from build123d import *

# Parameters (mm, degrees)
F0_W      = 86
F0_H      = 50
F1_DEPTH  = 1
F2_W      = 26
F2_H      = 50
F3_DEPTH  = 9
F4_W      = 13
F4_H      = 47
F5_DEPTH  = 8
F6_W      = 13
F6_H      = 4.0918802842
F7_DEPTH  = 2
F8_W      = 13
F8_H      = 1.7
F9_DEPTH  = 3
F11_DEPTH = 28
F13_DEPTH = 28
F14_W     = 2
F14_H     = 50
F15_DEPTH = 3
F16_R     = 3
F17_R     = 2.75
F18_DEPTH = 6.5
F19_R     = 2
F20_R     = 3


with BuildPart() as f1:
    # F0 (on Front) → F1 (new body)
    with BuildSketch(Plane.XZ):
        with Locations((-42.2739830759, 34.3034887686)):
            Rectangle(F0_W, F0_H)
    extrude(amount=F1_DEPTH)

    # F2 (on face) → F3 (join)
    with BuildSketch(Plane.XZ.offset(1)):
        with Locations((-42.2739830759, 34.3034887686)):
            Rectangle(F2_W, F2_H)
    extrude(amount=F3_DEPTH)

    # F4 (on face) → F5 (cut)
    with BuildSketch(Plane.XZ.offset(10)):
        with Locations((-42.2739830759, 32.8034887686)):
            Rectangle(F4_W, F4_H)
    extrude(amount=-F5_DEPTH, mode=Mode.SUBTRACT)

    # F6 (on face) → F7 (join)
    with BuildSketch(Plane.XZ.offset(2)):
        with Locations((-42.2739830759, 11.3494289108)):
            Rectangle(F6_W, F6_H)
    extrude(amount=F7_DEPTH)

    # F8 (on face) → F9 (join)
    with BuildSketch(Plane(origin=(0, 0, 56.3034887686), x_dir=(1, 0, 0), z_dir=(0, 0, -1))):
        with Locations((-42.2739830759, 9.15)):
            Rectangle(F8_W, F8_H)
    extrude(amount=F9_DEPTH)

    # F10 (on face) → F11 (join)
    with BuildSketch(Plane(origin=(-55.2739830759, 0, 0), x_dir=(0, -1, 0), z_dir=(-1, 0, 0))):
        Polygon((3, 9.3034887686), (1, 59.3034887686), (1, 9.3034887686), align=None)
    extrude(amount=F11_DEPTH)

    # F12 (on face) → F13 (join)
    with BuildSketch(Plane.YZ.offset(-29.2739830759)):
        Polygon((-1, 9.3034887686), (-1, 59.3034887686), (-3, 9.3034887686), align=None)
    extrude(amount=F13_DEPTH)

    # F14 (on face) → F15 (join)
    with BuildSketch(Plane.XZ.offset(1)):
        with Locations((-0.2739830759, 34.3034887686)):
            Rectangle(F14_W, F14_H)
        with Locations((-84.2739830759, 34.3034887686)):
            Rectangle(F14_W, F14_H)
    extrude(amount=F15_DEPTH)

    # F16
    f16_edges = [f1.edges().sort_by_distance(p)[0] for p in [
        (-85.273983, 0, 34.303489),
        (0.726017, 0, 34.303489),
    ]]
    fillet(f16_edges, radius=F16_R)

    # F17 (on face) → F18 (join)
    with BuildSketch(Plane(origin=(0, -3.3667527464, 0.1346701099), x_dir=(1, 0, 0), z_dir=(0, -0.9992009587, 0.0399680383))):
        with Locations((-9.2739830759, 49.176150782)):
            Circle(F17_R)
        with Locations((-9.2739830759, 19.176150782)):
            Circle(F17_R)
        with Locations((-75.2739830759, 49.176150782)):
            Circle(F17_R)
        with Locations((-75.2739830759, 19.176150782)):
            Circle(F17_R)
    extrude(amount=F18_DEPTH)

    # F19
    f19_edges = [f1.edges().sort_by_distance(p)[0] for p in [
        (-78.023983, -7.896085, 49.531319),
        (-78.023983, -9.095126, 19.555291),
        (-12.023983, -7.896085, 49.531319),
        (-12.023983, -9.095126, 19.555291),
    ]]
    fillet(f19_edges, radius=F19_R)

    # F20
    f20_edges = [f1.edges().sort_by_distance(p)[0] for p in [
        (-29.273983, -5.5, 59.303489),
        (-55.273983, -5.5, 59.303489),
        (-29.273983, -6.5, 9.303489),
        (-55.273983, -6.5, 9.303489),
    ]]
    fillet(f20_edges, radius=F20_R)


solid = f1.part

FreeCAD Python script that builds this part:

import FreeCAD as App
import Part
import Sketcher
from FreeCAD import Vector


def edges_at(feature, points):
    """Names of the edges that pass closest to the given points."""
    edges = feature.Shape.Edges
    near = lambda p: min(range(len(edges)), key=lambda i: edges[i].distToShape(Part.Vertex(*p))[0])
    return sorted({f"Edge{near(p) + 1}" for p in points})


def add_polygon(sketch, points):
    """Adds a closed chain of lines whose ends are joined by coincident constraints."""
    first, n = sketch.GeometryCount, len(points)
    for a, b in zip(points, points[1:] + points[:1]):
        sketch.addGeometry(Part.LineSegment(App.Vector(*a, 0), App.Vector(*b, 0)), False)
    for i in range(n):
        sketch.addConstraint(Sketcher.Constraint("Coincident", first + i, 2, first + (i + 1) % n, 1))

doc = App.newDocument("Part")
body = doc.addObject("PartDesign::Body", "Body")

sketch1 = body.newObject("Sketcher::SketchObject", "Sketch")
sketch1.AttachmentSupport = (doc.getObject("XZ_Plane"), [""])
sketch1.MapMode = "FlatFace"
add_polygon(sketch1, [(-85.273983, 59.303489), (-85.273983, 9.303489), (0.726017, 9.303489), (0.726017, 59.303489)])
sketch1.addConstraint([
    Sketcher.Constraint("Vertical", 0),
    Sketcher.Constraint("Horizontal", 1),
    Sketcher.Constraint("Vertical", 2),
    Sketcher.Constraint("Horizontal", 3),
    Sketcher.Constraint("DistanceX", 1, 1, 1, 2, 86.0),
    Sketcher.Constraint("DistanceY", 0, 2, 0, 1, 50.0),
    Sketcher.Constraint("DistanceY", -1, 1, 0, 2, 9.303489),
    Sketcher.Constraint("DistanceX", 0, 2, -1, 1, 85.273983),
])
pad1 = body.newObject("PartDesign::Pad", "Pad")
pad1.Profile = sketch1
pad1.Length = 1

sketch2 = body.newObject("Sketcher::SketchObject", "Sketch001")
sketch2.AttachmentSupport = (doc.getObject("XZ_Plane"), [""])
sketch2.MapMode = "FlatFace"
sketch2.AttachmentOffset = App.Placement(Vector(0, 0, 1), App.Rotation())
add_polygon(sketch2, [(-55.273983, 59.303489), (-55.273983, 9.303489), (-29.273983, 9.303489), (-29.273983, 59.303489)])
sketch2.addConstraint([
    Sketcher.Constraint("Vertical", 0),
    Sketcher.Constraint("Horizontal", 1),
    Sketcher.Constraint("Vertical", 2),
    Sketcher.Constraint("Horizontal", 3),
    Sketcher.Constraint("DistanceX", 1, 1, 1, 2, 26.0),
    Sketcher.Constraint("DistanceY", 0, 2, 0, 1, 50.0),
    Sketcher.Constraint("DistanceY", -1, 1, 0, 2, 9.303489),
    Sketcher.Constraint("DistanceX", 0, 2, -1, 1, 55.273983),
])
pad2 = body.newObject("PartDesign::Pad", "Pad001")
pad2.Profile = sketch2
pad2.Length = 9

sketch3 = body.newObject("Sketcher::SketchObject", "Sketch002")
sketch3.AttachmentSupport = (doc.getObject("XZ_Plane"), [""])
sketch3.MapMode = "FlatFace"
sketch3.AttachmentOffset = App.Placement(Vector(0, 0, 10), App.Rotation())
add_polygon(sketch3, [(-48.773983, 56.303489), (-48.773983, 9.303489), (-35.773983, 9.303489), (-35.773983, 56.303489)])
sketch3.addConstraint([
    Sketcher.Constraint("Vertical", 0),
    Sketcher.Constraint("Horizontal", 1),
    Sketcher.Constraint("Vertical", 2),
    Sketcher.Constraint("Horizontal", 3),
    Sketcher.Constraint("DistanceX", 1, 1, 1, 2, 13.0),
    Sketcher.Constraint("DistanceY", 0, 2, 0, 1, 47.0),
    Sketcher.Constraint("DistanceY", -1, 1, 0, 2, 9.303489),
    Sketcher.Constraint("DistanceX", 0, 2, -1, 1, 48.773983),
])
pocket1 = body.newObject("PartDesign::Pocket", "Pocket")
pocket1.Profile = sketch3
pocket1.Length = 8

sketch4 = body.newObject("Sketcher::SketchObject", "Sketch003")
sketch4.AttachmentSupport = (doc.getObject("XZ_Plane"), [""])
sketch4.MapMode = "FlatFace"
sketch4.AttachmentOffset = App.Placement(Vector(0, 0, 2), App.Rotation())
add_polygon(sketch4, [(-48.773983, 13.395369), (-48.773983, 9.303489), (-35.773983, 9.303489), (-35.773983, 13.395369)])
sketch4.addConstraint([
    Sketcher.Constraint("Vertical", 0),
    Sketcher.Constraint("Horizontal", 1),
    Sketcher.Constraint("Vertical", 2),
    Sketcher.Constraint("Horizontal", 3),
    Sketcher.Constraint("DistanceX", 1, 1, 1, 2, 13.0),
    Sketcher.Constraint("DistanceY", 0, 2, 0, 1, 4.09188),
    Sketcher.Constraint("DistanceY", -1, 1, 0, 2, 9.303489),
    Sketcher.Constraint("DistanceX", 0, 2, -1, 1, 48.773983),
])
pad3 = body.newObject("PartDesign::Pad", "Pad002")
pad3.Profile = sketch4
pad3.Length = 2

sketch5 = body.newObject("Sketcher::SketchObject", "Sketch004")
sketch5.AttachmentSupport = (doc.getObject("XY_Plane"), [""])
sketch5.MapMode = "FlatFace"
sketch5.AttachmentOffset = App.Placement(Vector(0, 0, 56.303489), App.Rotation())
add_polygon(sketch5, [(-48.773983, -10), (-48.773983, -8.3), (-35.773983, -8.3), (-35.773983, -10)])
sketch5.addConstraint([
    Sketcher.Constraint("Vertical", 0),
    Sketcher.Constraint("Horizontal", 1),
    Sketcher.Constraint("Vertical", 2),
    Sketcher.Constraint("Horizontal", 3),
    Sketcher.Constraint("DistanceX", 1, 1, 1, 2, 13.0),
    Sketcher.Constraint("DistanceY", 0, 1, 0, 2, 1.7),
    Sketcher.Constraint("DistanceY", 2, 2, -1, 1, 10.0),
    Sketcher.Constraint("DistanceX", 0, 2, -1, 1, 48.773983),
])
pad4 = body.newObject("PartDesign::Pad", "Pad003")
pad4.Profile = sketch5
pad4.Length = 3
pad4.Reversed = True

sketch6 = body.newObject("Sketcher::SketchObject", "Sketch005")
sketch6.AttachmentSupport = (doc.getObject("YZ_Plane"), [""])
sketch6.MapMode = "FlatFace"
sketch6.AttachmentOffset = App.Placement(Vector(0, 0, -55.273983), App.Rotation())
add_polygon(sketch6, [(-3, 9.303489), (-1, 59.303489), (-1, 9.303489)])
sketch6.addConstraint([
    Sketcher.Constraint("Vertical", 1),
    Sketcher.Constraint("Horizontal", 2),
    Sketcher.Constraint("DistanceX", 2, 2, 2, 1, 2.0),
    Sketcher.Constraint("DistanceY", 1, 2, 1, 1, 50.0),
    Sketcher.Constraint("DistanceX", 0, 2, -1, 1, 1.0),
    Sketcher.Constraint("DistanceY", -1, 1, 0, 2, 59.303489),
])
pad5 = body.newObject("PartDesign::Pad", "Pad004")
pad5.Profile = sketch6
pad5.Length = 28
pad5.Reversed = True

sketch7 = body.newObject("Sketcher::SketchObject", "Sketch006")
sketch7.AttachmentSupport = (doc.getObject("YZ_Plane"), [""])
sketch7.MapMode = "FlatFace"
sketch7.AttachmentOffset = App.Placement(Vector(0, 0, -29.273983), App.Rotation())
add_polygon(sketch7, [(-1, 9.303489), (-1, 59.303489), (-3, 9.303489)])
sketch7.addConstraint([
    Sketcher.Constraint("Vertical", 0),
    Sketcher.Constraint("Horizontal", 2),
    Sketcher.Constraint("DistanceX", 2, 1, 2, 2, 2.0),
    Sketcher.Constraint("DistanceY", 0, 1, 0, 2, 50.0),
    Sketcher.Constraint("DistanceX", 0, 2, -1, 1, 1.0),
    Sketcher.Constraint("DistanceY", -1, 1, 0, 2, 59.303489),
])
pad6 = body.newObject("PartDesign::Pad", "Pad005")
pad6.Profile = sketch7
pad6.Length = 28

sketch8 = body.newObject("Sketcher::SketchObject", "Sketch007")
sketch8.AttachmentSupport = (doc.getObject("XZ_Plane"), [""])
sketch8.MapMode = "FlatFace"
sketch8.AttachmentOffset = App.Placement(Vector(0, 0, 1), App.Rotation())
add_polygon(sketch8, [(-1.273983, 59.303489), (-1.273983, 9.303489), (0.726017, 9.303489), (0.726017, 59.303489)])
add_polygon(sketch8, [(-85.273983, 59.303489), (-85.273983, 9.303489), (-83.273983, 9.303489), (-83.273983, 59.303489)])
sketch8.addConstraint([
    Sketcher.Constraint("Vertical", 0),
    Sketcher.Constraint("Horizontal", 1),
    Sketcher.Constraint("Vertical", 2),
    Sketcher.Constraint("Horizontal", 3),
    Sketcher.Constraint("Vertical", 4),
    Sketcher.Constraint("Horizontal", 5),
    Sketcher.Constraint("Vertical", 6),
    Sketcher.Constraint("Horizontal", 7),
    Sketcher.Constraint("Horizontal", 1, 2, 4, 2),
    Sketcher.Constraint("Horizontal", 3, 2, 6, 2),
    Sketcher.Constraint("Equal", 3, 5),
    Sketcher.Constraint("DistanceX", 1, 1, 1, 2, 2.0),
    Sketcher.Constraint("DistanceY", 0, 2, 0, 1, 50.0),
    Sketcher.Constraint("DistanceX", 4, 2, 0, 2, 84.0),
    Sketcher.Constraint("DistanceY", -1, 1, 0, 2, 9.303489),
    Sketcher.Constraint("DistanceX", 0, 2, -1, 1, 1.273983),
])
pad7 = body.newObject("PartDesign::Pad", "Pad006")
pad7.Profile = sketch8
pad7.Length = 3
doc.recompute()

fillet = body.newObject("PartDesign::Fillet", "Fillet")
fillet.Base = (pad7, edges_at(pad7, [(-85.274, 0, 34.303), (0.726, 0, 34.303)]))
fillet.Radius = 3

sketch9 = body.newObject("Sketcher::SketchObject", "Sketch008")
sketch9.Placement = App.Placement(Vector(0, -3.366753, 0.13467), App.Rotation(Vector(1, 0, 0), Vector(0, 0.039968038, 0.999200959), Vector(0, -0.999200959, 0.039968038), "ZXY"))
sketch9.addGeometry([
    Part.Circle(Vector(-9.273983, 49.176151, 0), Vector(0, 0, 1), 2.75),
    Part.Circle(Vector(-9.273983, 19.176151, 0), Vector(0, 0, 1), 2.75),
    Part.Circle(Vector(-75.273983, 49.176151, 0), Vector(0, 0, 1), 2.75),
    Part.Circle(Vector(-75.273983, 19.176151, 0), Vector(0, 0, 1), 2.75),
], False)
sketch9.addConstraint([
    Sketcher.Constraint("Equal", 0, 1),
    Sketcher.Constraint("Equal", 1, 2),
    Sketcher.Constraint("Equal", 2, 3),
    Sketcher.Constraint("Horizontal", 0, 3, 2, 3),
    Sketcher.Constraint("Horizontal", 1, 3, 3, 3),
    Sketcher.Constraint("Vertical", 0, 3, 1, 3),
    Sketcher.Constraint("Vertical", 2, 3, 3, 3),
    Sketcher.Constraint("Diameter", 0, 5.5),
    Sketcher.Constraint("DistanceY", 1, 3, 0, 3, 30.0),
    Sketcher.Constraint("DistanceX", 2, 3, 0, 3, 66.0),
    Sketcher.Constraint("DistanceY", -1, 1, 0, 3, 49.176151),
    Sketcher.Constraint("DistanceX", 0, 3, -1, 1, 9.273983),
])
pad8 = body.newObject("PartDesign::Pad", "Pad007")
pad8.Profile = sketch9
pad8.Length = 6.5
doc.recompute()

fillet2 = body.newObject("PartDesign::Fillet", "Fillet001")
fillet2.Base = (pad8, edges_at(pad8, [
    (-78.024, -7.896, 49.531),
    (-78.024, -9.095, 19.555),
    (-12.024, -7.896, 49.531),
    (-12.024, -9.095, 19.555),
]))
fillet2.Radius = 2
doc.recompute()

fillet3 = body.newObject("PartDesign::Fillet", "Fillet002")
fillet3.Base = (fillet2, edges_at(fillet2, [
    (-29.274, -5.5, 59.303),
    (-55.274, -5.5, 59.303),
    (-29.274, -6.5, 9.303),
    (-55.274, -6.5, 9.303),
]))
fillet3.Radius = 3

doc.recompute()
